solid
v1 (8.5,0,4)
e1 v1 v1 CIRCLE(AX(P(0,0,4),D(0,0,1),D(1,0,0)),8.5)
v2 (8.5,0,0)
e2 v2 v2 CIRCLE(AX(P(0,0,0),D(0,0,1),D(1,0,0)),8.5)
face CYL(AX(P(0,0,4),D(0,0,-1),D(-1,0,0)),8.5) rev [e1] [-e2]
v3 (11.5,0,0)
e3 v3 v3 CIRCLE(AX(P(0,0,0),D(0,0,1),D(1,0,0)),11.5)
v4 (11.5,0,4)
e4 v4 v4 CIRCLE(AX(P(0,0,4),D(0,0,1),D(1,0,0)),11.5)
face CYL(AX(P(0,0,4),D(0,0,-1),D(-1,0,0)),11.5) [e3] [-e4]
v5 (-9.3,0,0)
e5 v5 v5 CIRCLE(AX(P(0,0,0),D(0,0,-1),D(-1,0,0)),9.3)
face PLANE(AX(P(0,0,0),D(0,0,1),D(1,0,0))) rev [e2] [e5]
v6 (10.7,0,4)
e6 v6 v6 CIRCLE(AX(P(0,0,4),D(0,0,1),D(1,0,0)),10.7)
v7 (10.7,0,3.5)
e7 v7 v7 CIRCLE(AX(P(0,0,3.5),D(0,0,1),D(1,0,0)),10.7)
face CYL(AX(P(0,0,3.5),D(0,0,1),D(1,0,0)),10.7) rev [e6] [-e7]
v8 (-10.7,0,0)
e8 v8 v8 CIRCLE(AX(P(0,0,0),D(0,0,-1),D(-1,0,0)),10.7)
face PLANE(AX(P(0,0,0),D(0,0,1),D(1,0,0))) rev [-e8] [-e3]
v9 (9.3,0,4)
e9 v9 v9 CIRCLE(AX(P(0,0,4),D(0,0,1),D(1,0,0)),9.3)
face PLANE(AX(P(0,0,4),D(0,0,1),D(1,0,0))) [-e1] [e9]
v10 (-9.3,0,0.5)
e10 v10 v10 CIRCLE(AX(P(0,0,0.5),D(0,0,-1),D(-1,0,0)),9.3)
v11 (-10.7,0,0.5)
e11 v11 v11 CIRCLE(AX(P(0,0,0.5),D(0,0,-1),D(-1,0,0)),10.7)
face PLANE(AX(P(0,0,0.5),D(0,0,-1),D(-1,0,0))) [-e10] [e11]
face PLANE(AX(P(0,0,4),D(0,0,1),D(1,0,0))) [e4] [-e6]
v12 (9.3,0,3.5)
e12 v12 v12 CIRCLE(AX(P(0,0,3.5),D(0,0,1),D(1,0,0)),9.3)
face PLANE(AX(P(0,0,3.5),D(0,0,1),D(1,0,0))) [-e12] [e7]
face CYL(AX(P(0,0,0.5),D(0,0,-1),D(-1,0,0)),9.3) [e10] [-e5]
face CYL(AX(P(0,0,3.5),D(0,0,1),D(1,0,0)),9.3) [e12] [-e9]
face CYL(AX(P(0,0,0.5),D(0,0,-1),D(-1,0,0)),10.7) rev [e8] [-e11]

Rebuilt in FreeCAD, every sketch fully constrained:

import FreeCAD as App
import Part
import Sketcher

V = App.Vector
Q = App.Units.Quantity

doc = App.newDocument("Part")
body = doc.addObject("PartDesign::Body", "Body")

sketch1 = body.newObject("Sketcher::SketchObject", "Sketch")
sketch1.AttachmentSupport = (doc.getObject("XY_Plane"), [""])
sketch1.MapMode = "FlatFace"
sketch1.addGeometry([
    Part.Circle(V(0, 0, 0), V(0, 0, 1), 12),
    Part.Circle(V(0, 0, 0), V(0, 0, 1), 8),
], False)
sketch1.addConstraint([
    Sketcher.Constraint("Coincident", 0, 3, -1, 1),
    Sketcher.Constraint("Coincident", 1, 3, -1, 1),
    Sketcher.Constraint("Diameter", 0, Q("23 mm")),
    Sketcher.Constraint("Diameter", 1, Q("17 mm")),
])
pad1 = body.newObject("PartDesign::Pad", "Pad")
pad1.Profile = sketch1
pad1.Length = 4

sketch2 = body.newObject("Sketcher::SketchObject", "Sketch001")
sketch2.AttachmentSupport = (doc.getObject("XY_Plane"), [""])
sketch2.MapMode = "FlatFace"
sketch2.AttachmentOffset = App.Placement(V(0, 0, 4), App.Rotation())
sketch2.addGeometry([
    Part.Circle(V(0, 0, 0), V(0, 0, 1), 11),
    Part.Circle(V(0, 0, 0), V(0, 0, 1), 9),
], False)
sketch2.addConstraint([
    Sketcher.Constraint("Coincident", 0, 3, -1, 1),
    Sketcher.Constraint("Coincident", 1, 3, -1, 1),
    Sketcher.Constraint("Diameter", 0, Q("21.4 mm")),
    Sketcher.Constraint("Diameter", 1, Q("18.6 mm")),
])
pocket1 = body.newObject("PartDesign::Pocket", "Pocket")
pocket1.Profile = sketch2
pocket1.Length = 0.5

sketch3 = body.newObject("Sketcher::SketchObject", "Sketch002")
sketch3.AttachmentSupport = (doc.getObject("XY_Plane"), [""])
sketch3.MapMode = "FlatFace"
sketch3.AttachmentOffset = App.Placement(V(0, 0, 0.5), App.Rotation())
sketch3.addGeometry([
    Part.Circle(V(0, 0, 0), V(0, 0, 1), 11),
    Part.Circle(V(0, 0, 0), V(0, 0, 1), 9),
], False)
sketch3.addConstraint([
    Sketcher.Constraint("Coincident", 0, 3, -1, 1),
    Sketcher.Constraint("Coincident", 1, 3, -1, 1),
    Sketcher.Constraint("Diameter", 0, Q("21.4 mm")),
    Sketcher.Constraint("Diameter", 1, Q("18.6 mm")),
])
pocket2 = body.newObject("PartDesign::Pocket", "Pocket001")
pocket2.Profile = sketch3
pocket2.Length = 0.5

doc.recompute()
